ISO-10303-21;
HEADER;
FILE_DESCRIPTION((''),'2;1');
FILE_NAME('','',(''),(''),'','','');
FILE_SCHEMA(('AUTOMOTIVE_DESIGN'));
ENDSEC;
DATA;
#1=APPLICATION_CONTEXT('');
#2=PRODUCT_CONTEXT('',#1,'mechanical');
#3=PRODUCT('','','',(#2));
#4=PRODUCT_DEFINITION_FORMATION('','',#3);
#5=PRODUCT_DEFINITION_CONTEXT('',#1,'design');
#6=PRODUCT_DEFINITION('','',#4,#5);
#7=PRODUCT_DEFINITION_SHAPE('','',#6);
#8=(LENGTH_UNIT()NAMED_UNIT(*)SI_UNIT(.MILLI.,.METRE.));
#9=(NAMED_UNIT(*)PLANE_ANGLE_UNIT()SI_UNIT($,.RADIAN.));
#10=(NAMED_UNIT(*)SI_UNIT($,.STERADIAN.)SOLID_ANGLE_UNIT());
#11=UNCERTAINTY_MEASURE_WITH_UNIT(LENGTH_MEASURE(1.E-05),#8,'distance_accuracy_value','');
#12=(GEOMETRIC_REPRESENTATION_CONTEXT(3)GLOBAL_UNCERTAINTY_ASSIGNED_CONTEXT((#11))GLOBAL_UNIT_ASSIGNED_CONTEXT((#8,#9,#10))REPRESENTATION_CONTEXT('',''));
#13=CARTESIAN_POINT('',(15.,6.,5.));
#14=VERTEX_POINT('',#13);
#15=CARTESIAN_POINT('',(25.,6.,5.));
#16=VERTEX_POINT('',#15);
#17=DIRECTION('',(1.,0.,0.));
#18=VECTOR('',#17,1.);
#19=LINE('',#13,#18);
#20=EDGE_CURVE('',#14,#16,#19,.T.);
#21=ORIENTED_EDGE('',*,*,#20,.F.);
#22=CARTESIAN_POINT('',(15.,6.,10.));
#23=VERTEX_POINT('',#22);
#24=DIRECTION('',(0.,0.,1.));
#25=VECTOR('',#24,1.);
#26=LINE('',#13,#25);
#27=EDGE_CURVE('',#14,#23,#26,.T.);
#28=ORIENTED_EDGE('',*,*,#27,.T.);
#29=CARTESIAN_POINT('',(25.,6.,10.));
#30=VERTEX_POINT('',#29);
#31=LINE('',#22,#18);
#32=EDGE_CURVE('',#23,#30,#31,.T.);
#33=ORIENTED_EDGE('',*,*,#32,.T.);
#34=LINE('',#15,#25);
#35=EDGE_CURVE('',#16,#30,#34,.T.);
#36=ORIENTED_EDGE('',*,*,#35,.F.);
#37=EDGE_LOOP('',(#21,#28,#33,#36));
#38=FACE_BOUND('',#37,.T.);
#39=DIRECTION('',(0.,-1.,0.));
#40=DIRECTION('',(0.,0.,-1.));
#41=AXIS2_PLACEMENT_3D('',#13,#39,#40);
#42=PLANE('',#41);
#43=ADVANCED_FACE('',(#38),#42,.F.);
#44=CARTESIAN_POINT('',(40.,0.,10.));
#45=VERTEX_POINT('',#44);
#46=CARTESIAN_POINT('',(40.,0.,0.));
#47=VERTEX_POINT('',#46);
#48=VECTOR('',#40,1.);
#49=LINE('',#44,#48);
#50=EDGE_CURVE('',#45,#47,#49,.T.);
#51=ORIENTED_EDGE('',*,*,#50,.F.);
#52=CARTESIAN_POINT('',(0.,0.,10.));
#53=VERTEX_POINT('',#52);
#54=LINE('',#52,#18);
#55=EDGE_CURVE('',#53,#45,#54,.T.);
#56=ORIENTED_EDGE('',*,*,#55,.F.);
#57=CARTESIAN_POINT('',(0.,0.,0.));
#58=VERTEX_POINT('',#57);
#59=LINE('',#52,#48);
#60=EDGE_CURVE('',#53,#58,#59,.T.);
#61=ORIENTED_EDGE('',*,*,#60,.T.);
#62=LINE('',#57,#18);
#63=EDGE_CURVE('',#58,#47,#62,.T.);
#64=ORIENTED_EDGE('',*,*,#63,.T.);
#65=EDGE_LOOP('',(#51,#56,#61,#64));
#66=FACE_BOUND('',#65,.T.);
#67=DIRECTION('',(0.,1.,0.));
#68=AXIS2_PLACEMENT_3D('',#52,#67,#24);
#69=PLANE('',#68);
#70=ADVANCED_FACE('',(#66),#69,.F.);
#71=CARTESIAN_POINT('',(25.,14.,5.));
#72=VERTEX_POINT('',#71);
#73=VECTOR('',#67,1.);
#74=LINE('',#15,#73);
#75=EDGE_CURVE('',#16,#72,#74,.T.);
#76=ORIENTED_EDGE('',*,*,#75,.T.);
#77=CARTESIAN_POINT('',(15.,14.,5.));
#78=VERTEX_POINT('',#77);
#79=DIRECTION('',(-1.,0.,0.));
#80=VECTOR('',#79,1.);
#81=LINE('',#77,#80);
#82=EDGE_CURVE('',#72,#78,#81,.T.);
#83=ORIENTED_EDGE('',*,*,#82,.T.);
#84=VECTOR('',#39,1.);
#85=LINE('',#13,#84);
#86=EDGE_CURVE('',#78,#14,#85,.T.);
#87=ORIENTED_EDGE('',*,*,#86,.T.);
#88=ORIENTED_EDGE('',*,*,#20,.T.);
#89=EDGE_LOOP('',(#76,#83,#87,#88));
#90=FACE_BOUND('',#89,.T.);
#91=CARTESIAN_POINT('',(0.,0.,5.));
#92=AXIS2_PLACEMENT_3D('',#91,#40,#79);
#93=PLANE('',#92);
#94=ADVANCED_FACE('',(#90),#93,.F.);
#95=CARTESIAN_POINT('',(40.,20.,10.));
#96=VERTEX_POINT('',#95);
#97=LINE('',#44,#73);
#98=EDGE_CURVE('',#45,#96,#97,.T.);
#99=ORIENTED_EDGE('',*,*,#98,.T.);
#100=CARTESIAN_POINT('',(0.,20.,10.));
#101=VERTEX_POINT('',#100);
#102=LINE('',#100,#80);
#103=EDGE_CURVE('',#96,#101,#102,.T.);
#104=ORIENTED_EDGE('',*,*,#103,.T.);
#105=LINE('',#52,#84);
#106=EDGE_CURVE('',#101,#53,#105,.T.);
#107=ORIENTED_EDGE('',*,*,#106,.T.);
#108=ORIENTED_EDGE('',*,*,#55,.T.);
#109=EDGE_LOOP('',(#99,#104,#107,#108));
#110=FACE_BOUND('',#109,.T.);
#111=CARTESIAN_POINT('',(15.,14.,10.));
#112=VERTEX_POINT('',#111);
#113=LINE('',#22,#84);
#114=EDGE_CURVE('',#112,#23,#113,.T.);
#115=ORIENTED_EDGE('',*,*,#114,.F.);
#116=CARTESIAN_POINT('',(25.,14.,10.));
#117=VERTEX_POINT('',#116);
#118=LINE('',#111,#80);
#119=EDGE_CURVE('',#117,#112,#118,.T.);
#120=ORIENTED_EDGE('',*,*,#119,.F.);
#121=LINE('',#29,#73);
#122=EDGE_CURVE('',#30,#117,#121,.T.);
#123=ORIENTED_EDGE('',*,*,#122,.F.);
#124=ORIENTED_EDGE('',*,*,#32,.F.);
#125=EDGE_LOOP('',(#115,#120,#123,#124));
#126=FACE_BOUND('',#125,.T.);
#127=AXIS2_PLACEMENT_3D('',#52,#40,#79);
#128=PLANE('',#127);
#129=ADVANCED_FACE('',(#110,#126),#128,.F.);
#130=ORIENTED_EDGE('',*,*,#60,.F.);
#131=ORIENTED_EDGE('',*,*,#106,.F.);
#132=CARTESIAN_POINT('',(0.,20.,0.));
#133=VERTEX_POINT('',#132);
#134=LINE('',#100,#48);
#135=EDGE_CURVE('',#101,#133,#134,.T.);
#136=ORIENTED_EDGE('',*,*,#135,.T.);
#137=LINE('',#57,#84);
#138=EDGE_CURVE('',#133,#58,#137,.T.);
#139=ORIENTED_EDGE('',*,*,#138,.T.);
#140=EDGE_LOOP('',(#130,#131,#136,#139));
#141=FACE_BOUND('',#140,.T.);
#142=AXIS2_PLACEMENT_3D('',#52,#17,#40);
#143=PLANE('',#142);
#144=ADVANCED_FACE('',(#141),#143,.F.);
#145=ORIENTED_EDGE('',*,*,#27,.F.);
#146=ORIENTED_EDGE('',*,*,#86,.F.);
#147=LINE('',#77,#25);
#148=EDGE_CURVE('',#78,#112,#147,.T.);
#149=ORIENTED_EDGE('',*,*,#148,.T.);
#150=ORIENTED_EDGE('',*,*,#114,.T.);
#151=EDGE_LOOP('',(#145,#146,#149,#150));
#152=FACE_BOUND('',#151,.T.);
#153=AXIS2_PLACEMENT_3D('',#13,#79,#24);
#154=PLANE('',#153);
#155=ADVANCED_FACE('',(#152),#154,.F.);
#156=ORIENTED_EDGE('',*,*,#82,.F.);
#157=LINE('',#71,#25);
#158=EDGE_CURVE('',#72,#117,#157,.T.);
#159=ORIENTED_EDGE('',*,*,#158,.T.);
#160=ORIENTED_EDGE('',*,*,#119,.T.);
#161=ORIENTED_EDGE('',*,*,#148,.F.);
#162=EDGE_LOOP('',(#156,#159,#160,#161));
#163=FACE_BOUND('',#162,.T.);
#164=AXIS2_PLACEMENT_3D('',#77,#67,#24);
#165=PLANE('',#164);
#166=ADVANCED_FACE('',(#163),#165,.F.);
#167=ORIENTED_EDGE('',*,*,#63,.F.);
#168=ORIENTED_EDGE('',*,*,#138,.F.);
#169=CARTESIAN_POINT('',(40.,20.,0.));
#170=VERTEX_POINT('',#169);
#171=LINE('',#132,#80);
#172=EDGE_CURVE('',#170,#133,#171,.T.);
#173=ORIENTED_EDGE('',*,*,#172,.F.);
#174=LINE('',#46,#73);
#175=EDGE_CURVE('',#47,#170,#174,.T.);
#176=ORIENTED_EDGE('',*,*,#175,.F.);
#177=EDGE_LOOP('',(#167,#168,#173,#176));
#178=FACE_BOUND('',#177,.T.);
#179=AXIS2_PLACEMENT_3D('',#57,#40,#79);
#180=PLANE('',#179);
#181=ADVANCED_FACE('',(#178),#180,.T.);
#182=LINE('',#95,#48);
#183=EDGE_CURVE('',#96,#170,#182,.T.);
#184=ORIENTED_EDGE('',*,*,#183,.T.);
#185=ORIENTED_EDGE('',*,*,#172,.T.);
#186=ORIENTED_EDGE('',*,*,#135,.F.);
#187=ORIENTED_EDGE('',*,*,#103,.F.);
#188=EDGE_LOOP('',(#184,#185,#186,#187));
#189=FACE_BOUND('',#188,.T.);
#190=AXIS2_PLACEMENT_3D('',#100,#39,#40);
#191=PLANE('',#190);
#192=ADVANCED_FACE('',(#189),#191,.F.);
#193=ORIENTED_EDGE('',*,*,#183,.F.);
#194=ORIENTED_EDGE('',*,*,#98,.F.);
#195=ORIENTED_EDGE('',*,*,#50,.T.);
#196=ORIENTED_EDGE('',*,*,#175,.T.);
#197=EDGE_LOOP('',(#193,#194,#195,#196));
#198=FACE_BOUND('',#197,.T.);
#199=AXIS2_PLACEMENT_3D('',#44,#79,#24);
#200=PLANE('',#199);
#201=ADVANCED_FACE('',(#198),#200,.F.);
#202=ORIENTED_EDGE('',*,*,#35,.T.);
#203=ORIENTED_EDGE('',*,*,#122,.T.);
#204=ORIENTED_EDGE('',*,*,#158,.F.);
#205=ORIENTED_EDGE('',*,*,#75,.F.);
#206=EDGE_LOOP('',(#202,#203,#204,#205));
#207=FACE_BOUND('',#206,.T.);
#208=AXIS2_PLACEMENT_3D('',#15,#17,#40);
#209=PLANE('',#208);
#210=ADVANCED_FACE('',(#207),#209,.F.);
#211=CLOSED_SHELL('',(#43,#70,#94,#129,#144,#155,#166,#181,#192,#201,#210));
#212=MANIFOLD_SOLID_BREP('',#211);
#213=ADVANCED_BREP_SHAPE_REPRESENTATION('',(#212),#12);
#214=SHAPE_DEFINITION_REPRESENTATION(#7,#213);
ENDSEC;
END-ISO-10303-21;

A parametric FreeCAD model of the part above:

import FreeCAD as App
import Part
import Sketcher
Q = App.Units.Quantity


def add_polygon(sketch, points):
    """Adds a closed chain of lines whose ends are joined by coincident constraints."""
    first, n = sketch.GeometryCount, len(points)
    for a, b in zip(points, points[1:] + points[:1]):
        sketch.addGeometry(Part.LineSegment(App.Vector(*a, 0), App.Vector(*b, 0)), False)
    for i in range(n):
        sketch.addConstraint(Sketcher.Constraint("Coincident", first + i, 2, first + (i + 1) % n, 1))

doc = App.newDocument("Part")
body = doc.addObject("PartDesign::Body", "Body")

# Sketch on XY plane
sketch1 = doc.addObject("Sketcher::SketchObject", "Sketch")
body.addObject(sketch1)
sketch1.AttachmentSupport = (doc.XY_Plane, [""])
sketch1.MapMode = "FlatFace"
add_polygon(sketch1, [(0, 20), (0, 0), (40, 0), (40, 20)])  # lines 0-3
sketch1.addConstraint([
    Sketcher.Constraint("Vertical", 0),
    Sketcher.Constraint("Horizontal", 1),
    Sketcher.Constraint("Vertical", 2),
    Sketcher.Constraint("Horizontal", 3),
    Sketcher.Constraint("Coincident", 0, 2, -1, 1),
    Sketcher.Constraint("DistanceX", 1, 1, 1, 2, Q("40 mm")),
    Sketcher.Constraint("DistanceY", 0, 2, 0, 1, Q("20 mm")),
])
pad1 = doc.addObject("PartDesign::Pad", "Pad")
body.addObject(pad1)
pad1.Profile = sketch1
pad1.Length = 10

# Sketch on XY plane
sketch2 = doc.addObject("Sketcher::SketchObject", "Sketch001")
body.addObject(sketch2)
sketch2.AttachmentSupport = (doc.XY_Plane, [""])
sketch2.MapMode = "FlatFace"
sketch2.AttachmentOffset = App.Placement(App.Vector(0, 0, 10), App.Rotation())
add_polygon(sketch2, [(15, 14), (15, 6), (25, 6), (25, 14)])  # lines 0-3
sketch2.addConstraint([
    Sketcher.Constraint("Vertical", 0),
    Sketcher.Constraint("Horizontal", 1),
    Sketcher.Constraint("Vertical", 2),
    Sketcher.Constraint("Horizontal", 3),
    Sketcher.Constraint("DistanceX", 1, 1, 1, 2, Q("10 mm")),
    Sketcher.Constraint("DistanceY", 0, 2, 0, 1, Q("8 mm")),
    Sketcher.Constraint("DistanceX", -1, 1, 0, 2, Q("15 mm")),
    Sketcher.Constraint("DistanceY", -1, 1, 0, 2, Q("6 mm")),
])
pocket1 = doc.addObject("PartDesign::Pocket", "Pocket")
body.addObject(pocket1)
pocket1.Profile = sketch2
pocket1.Length = 5

doc.recompute()
